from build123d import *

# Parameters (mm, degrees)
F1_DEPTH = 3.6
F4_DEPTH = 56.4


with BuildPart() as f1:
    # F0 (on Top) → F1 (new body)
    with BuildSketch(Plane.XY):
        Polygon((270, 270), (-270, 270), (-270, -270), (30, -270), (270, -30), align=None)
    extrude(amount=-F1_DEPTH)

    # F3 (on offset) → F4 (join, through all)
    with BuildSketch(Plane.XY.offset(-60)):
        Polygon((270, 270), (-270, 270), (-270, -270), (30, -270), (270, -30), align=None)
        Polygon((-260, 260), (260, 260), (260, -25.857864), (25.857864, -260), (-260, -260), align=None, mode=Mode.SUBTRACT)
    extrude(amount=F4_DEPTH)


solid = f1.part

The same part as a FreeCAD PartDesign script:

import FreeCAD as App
import Part
import Sketcher

doc = App.newDocument("Part")
params = doc.addObject("Spreadsheet::Sheet", "Params")
for row, (alias, value) in enumerate([
    ("sketch1_width", "540 mm"),
    ("sketch1_width2", "300 mm"),
    ("pad1_length", "3.6 mm"),
    ("sketch2_width", "540 mm"),
    ("sketch2_width2", "300 mm"),
    ("sketch2_width3", "520 mm"),
], start=1):
    params.set(f"A{row}", alias)
    params.set(f"B{row}", "=" + value)
    params.setAlias(f"B{row}", alias)

body = doc.addObject("PartDesign::Body", "Body")

# Sketch on XY plane
sketch1 = doc.addObject("Sketcher::SketchObject", "Sketch")
body.addObject(sketch1)
sketch1.AttachmentSupport = (doc.XY_Plane, [""])
sketch1.MapMode = "FlatFace"
sketch1.addGeometry(Part.LineSegment(App.Vector(270, 270, 0), App.Vector(-270, 270, 0)), False)
sketch1.addGeometry(Part.LineSegment(App.Vector(-270, 270, 0), App.Vector(-270, -270, 0)), False)
sketch1.addGeometry(Part.LineSegment(App.Vector(-270, -270, 0), App.Vector(30, -270, 0)), False)
sketch1.addGeometry(Part.LineSegment(App.Vector(30, -270, 0), App.Vector(270, -30, 0)), False)
sketch1.addGeometry(Part.LineSegment(App.Vector(270, -30, 0), App.Vector(270, 270, 0)), False)
sketch1.addConstraint(Sketcher.Constraint("Coincident", 0, 2, 1, 1))
sketch1.addConstraint(Sketcher.Constraint("Coincident", 1, 2, 2, 1))
sketch1.addConstraint(Sketcher.Constraint("Coincident", 2, 2, 3, 1))
sketch1.addConstraint(Sketcher.Constraint("Coincident", 3, 2, 4, 1))
sketch1.addConstraint(Sketcher.Constraint("Coincident", 4, 2, 0, 1))
sketch1.addConstraint(Sketcher.Constraint("Horizontal", 0))
sketch1.addConstraint(Sketcher.Constraint("Vertical", 1))
sketch1.addConstraint(Sketcher.Constraint("Horizontal", 2))
sketch1.addConstraint(Sketcher.Constraint("Vertical", 4))
sketch1.addConstraint(Sketcher.Constraint("Symmetric", 1, 2, 4, 2, -1, 1))
sketch1.addConstraint(Sketcher.Constraint("Equal", 0, 1))
sketch1.addConstraint(Sketcher.Constraint("Equal", 2, 4))
sketch1.addConstraint(Sketcher.Constraint("DistanceX", 0, 2, 0, 1, 540.0))
sketch1.addConstraint(Sketcher.Constraint("DistanceX", 2, 1, 2, 2, 300.0))
sketch1.setExpression("Constraints[12]", "Params.sketch1_width")
sketch1.setExpression("Constraints[13]", "Params.sketch1_width2")
pad1 = doc.addObject("PartDesign::Pad", "Pad")
body.addObject(pad1)
pad1.Profile = sketch1
pad1.setExpression("Length", "Params.pad1_length")
pad1.Reversed = True

# Sketch on XY plane
sketch2 = doc.addObject("Sketcher::SketchObject", "Sketch001")
body.addObject(sketch2)
sketch2.AttachmentSupport = (doc.XY_Plane, [""])
sketch2.MapMode = "FlatFace"
sketch2.AttachmentOffset = App.Placement(App.Vector(0, 0, -60), App.Rotation())
sketch2.addGeometry(Part.LineSegment(App.Vector(270, 270, 0), App.Vector(-270, 270, 0)), False)
sketch2.addGeometry(Part.LineSegment(App.Vector(-270, 270, 0), App.Vector(-270, -270, 0)), False)
sketch2.addGeometry(Part.LineSegment(App.Vector(-270, -270, 0), App.Vector(30, -270, 0)), False)
sketch2.addGeometry(Part.LineSegment(App.Vector(30, -270, 0), App.Vector(270, -30, 0)), False)
sketch2.addGeometry(Part.LineSegment(App.Vector(270, -30, 0), App.Vector(270, 270, 0)), False)
sketch2.addGeometry(Part.LineSegment(App.Vector(-260, -260, 0), App.Vector(-260, 260, 0)), False)
sketch2.addGeometry(Part.LineSegment(App.Vector(-260, 260, 0), App.Vector(260, 260, 0)), False)
sketch2.addGeometry(Part.LineSegment(App.Vector(260, 260, 0), App.Vector(260, -25.857864, 0)), False)
sketch2.addGeometry(Part.LineSegment(App.Vector(260, -25.857864, 0), App.Vector(25.857864, -260, 0)), False)
sketch2.addGeometry(Part.LineSegment(App.Vector(25.857864, -260, 0), App.Vector(-260, -260, 0)), False)
sketch2.addConstraint(Sketcher.Constraint("Coincident", 0, 2, 1, 1))
sketch2.addConstraint(Sketcher.Constraint("Coincident", 1, 2, 2, 1))
sketch2.addConstraint(Sketcher.Constraint("Coincident", 2, 2, 3, 1))
sketch2.addConstraint(Sketcher.Constraint("Coincident", 3, 2, 4, 1))
sketch2.addConstraint(Sketcher.Constraint("Coincident", 4, 2, 0, 1))
sketch2.addConstraint(Sketcher.Constraint("Coincident", 5, 2, 6, 1))
sketch2.addConstraint(Sketcher.Constraint("Coincident", 6, 2, 7, 1))
sketch2.addConstraint(Sketcher.Constraint("Coincident", 7, 2, 8, 1))
sketch2.addConstraint(Sketcher.Constraint("Coincident", 8, 2, 9, 1))
sketch2.addConstraint(Sketcher.Constraint("Coincident", 9, 2, 5, 1))
sketch2.addConstraint(Sketcher.Constraint("Horizontal", 0))
sketch2.addConstraint(Sketcher.Constraint("Vertical", 1))
sketch2.addConstraint(Sketcher.Constraint("Horizontal", 2))
sketch2.addConstraint(Sketcher.Constraint("Vertical", 4))
sketch2.addConstraint(Sketcher.Constraint("Vertical", 5))
sketch2.addConstraint(Sketcher.Constraint("Horizontal", 6))
sketch2.addConstraint(Sketcher.Constraint("Vertical", 7))
sketch2.addConstraint(Sketcher.Constraint("Horizontal", 9))
sketch2.addConstraint(Sketcher.Constraint("Symmetric", 1, 2, 4, 2, -1, 1))
sketch2.addConstraint(Sketcher.Constraint("Symmetric", 6, 2, 9, 2, -1, 1))
sketch2.addConstraint(Sketcher.Constraint("Parallel", 3, 8))
sketch2.addConstraint(Sketcher.Constraint("Equal", 0, 1))
sketch2.addConstraint(Sketcher.Constraint("Equal", 2, 4))
sketch2.addConstraint(Sketcher.Constraint("Equal", 6, 5))
sketch2.addConstraint(Sketcher.Constraint("DistanceX", 0, 2, 0, 1, 540.0))
sketch2.addConstraint(Sketcher.Constraint("DistanceX", 2, 1, 2, 2, 300.0))
sketch2.addConstraint(Sketcher.Constraint("DistanceX", 6, 1, 6, 2, 520.0))
sketch2.addConstraint(Sketcher.Constraint("DistanceX", 9, 2, 9, 1, 285.857864))
sketch2.setExpression("Constraints[24]", "Params.sketch2_width")
sketch2.setExpression("Constraints[25]", "Params.sketch2_width2")
sketch2.setExpression("Constraints[26]", "Params.sketch2_width3")
pad2 = doc.addObject("PartDesign::Pad", "Pad001")
body.addObject(pad2)
pad2.Profile = sketch2
pad2.Type = "UpToLast"

doc.recompute()
